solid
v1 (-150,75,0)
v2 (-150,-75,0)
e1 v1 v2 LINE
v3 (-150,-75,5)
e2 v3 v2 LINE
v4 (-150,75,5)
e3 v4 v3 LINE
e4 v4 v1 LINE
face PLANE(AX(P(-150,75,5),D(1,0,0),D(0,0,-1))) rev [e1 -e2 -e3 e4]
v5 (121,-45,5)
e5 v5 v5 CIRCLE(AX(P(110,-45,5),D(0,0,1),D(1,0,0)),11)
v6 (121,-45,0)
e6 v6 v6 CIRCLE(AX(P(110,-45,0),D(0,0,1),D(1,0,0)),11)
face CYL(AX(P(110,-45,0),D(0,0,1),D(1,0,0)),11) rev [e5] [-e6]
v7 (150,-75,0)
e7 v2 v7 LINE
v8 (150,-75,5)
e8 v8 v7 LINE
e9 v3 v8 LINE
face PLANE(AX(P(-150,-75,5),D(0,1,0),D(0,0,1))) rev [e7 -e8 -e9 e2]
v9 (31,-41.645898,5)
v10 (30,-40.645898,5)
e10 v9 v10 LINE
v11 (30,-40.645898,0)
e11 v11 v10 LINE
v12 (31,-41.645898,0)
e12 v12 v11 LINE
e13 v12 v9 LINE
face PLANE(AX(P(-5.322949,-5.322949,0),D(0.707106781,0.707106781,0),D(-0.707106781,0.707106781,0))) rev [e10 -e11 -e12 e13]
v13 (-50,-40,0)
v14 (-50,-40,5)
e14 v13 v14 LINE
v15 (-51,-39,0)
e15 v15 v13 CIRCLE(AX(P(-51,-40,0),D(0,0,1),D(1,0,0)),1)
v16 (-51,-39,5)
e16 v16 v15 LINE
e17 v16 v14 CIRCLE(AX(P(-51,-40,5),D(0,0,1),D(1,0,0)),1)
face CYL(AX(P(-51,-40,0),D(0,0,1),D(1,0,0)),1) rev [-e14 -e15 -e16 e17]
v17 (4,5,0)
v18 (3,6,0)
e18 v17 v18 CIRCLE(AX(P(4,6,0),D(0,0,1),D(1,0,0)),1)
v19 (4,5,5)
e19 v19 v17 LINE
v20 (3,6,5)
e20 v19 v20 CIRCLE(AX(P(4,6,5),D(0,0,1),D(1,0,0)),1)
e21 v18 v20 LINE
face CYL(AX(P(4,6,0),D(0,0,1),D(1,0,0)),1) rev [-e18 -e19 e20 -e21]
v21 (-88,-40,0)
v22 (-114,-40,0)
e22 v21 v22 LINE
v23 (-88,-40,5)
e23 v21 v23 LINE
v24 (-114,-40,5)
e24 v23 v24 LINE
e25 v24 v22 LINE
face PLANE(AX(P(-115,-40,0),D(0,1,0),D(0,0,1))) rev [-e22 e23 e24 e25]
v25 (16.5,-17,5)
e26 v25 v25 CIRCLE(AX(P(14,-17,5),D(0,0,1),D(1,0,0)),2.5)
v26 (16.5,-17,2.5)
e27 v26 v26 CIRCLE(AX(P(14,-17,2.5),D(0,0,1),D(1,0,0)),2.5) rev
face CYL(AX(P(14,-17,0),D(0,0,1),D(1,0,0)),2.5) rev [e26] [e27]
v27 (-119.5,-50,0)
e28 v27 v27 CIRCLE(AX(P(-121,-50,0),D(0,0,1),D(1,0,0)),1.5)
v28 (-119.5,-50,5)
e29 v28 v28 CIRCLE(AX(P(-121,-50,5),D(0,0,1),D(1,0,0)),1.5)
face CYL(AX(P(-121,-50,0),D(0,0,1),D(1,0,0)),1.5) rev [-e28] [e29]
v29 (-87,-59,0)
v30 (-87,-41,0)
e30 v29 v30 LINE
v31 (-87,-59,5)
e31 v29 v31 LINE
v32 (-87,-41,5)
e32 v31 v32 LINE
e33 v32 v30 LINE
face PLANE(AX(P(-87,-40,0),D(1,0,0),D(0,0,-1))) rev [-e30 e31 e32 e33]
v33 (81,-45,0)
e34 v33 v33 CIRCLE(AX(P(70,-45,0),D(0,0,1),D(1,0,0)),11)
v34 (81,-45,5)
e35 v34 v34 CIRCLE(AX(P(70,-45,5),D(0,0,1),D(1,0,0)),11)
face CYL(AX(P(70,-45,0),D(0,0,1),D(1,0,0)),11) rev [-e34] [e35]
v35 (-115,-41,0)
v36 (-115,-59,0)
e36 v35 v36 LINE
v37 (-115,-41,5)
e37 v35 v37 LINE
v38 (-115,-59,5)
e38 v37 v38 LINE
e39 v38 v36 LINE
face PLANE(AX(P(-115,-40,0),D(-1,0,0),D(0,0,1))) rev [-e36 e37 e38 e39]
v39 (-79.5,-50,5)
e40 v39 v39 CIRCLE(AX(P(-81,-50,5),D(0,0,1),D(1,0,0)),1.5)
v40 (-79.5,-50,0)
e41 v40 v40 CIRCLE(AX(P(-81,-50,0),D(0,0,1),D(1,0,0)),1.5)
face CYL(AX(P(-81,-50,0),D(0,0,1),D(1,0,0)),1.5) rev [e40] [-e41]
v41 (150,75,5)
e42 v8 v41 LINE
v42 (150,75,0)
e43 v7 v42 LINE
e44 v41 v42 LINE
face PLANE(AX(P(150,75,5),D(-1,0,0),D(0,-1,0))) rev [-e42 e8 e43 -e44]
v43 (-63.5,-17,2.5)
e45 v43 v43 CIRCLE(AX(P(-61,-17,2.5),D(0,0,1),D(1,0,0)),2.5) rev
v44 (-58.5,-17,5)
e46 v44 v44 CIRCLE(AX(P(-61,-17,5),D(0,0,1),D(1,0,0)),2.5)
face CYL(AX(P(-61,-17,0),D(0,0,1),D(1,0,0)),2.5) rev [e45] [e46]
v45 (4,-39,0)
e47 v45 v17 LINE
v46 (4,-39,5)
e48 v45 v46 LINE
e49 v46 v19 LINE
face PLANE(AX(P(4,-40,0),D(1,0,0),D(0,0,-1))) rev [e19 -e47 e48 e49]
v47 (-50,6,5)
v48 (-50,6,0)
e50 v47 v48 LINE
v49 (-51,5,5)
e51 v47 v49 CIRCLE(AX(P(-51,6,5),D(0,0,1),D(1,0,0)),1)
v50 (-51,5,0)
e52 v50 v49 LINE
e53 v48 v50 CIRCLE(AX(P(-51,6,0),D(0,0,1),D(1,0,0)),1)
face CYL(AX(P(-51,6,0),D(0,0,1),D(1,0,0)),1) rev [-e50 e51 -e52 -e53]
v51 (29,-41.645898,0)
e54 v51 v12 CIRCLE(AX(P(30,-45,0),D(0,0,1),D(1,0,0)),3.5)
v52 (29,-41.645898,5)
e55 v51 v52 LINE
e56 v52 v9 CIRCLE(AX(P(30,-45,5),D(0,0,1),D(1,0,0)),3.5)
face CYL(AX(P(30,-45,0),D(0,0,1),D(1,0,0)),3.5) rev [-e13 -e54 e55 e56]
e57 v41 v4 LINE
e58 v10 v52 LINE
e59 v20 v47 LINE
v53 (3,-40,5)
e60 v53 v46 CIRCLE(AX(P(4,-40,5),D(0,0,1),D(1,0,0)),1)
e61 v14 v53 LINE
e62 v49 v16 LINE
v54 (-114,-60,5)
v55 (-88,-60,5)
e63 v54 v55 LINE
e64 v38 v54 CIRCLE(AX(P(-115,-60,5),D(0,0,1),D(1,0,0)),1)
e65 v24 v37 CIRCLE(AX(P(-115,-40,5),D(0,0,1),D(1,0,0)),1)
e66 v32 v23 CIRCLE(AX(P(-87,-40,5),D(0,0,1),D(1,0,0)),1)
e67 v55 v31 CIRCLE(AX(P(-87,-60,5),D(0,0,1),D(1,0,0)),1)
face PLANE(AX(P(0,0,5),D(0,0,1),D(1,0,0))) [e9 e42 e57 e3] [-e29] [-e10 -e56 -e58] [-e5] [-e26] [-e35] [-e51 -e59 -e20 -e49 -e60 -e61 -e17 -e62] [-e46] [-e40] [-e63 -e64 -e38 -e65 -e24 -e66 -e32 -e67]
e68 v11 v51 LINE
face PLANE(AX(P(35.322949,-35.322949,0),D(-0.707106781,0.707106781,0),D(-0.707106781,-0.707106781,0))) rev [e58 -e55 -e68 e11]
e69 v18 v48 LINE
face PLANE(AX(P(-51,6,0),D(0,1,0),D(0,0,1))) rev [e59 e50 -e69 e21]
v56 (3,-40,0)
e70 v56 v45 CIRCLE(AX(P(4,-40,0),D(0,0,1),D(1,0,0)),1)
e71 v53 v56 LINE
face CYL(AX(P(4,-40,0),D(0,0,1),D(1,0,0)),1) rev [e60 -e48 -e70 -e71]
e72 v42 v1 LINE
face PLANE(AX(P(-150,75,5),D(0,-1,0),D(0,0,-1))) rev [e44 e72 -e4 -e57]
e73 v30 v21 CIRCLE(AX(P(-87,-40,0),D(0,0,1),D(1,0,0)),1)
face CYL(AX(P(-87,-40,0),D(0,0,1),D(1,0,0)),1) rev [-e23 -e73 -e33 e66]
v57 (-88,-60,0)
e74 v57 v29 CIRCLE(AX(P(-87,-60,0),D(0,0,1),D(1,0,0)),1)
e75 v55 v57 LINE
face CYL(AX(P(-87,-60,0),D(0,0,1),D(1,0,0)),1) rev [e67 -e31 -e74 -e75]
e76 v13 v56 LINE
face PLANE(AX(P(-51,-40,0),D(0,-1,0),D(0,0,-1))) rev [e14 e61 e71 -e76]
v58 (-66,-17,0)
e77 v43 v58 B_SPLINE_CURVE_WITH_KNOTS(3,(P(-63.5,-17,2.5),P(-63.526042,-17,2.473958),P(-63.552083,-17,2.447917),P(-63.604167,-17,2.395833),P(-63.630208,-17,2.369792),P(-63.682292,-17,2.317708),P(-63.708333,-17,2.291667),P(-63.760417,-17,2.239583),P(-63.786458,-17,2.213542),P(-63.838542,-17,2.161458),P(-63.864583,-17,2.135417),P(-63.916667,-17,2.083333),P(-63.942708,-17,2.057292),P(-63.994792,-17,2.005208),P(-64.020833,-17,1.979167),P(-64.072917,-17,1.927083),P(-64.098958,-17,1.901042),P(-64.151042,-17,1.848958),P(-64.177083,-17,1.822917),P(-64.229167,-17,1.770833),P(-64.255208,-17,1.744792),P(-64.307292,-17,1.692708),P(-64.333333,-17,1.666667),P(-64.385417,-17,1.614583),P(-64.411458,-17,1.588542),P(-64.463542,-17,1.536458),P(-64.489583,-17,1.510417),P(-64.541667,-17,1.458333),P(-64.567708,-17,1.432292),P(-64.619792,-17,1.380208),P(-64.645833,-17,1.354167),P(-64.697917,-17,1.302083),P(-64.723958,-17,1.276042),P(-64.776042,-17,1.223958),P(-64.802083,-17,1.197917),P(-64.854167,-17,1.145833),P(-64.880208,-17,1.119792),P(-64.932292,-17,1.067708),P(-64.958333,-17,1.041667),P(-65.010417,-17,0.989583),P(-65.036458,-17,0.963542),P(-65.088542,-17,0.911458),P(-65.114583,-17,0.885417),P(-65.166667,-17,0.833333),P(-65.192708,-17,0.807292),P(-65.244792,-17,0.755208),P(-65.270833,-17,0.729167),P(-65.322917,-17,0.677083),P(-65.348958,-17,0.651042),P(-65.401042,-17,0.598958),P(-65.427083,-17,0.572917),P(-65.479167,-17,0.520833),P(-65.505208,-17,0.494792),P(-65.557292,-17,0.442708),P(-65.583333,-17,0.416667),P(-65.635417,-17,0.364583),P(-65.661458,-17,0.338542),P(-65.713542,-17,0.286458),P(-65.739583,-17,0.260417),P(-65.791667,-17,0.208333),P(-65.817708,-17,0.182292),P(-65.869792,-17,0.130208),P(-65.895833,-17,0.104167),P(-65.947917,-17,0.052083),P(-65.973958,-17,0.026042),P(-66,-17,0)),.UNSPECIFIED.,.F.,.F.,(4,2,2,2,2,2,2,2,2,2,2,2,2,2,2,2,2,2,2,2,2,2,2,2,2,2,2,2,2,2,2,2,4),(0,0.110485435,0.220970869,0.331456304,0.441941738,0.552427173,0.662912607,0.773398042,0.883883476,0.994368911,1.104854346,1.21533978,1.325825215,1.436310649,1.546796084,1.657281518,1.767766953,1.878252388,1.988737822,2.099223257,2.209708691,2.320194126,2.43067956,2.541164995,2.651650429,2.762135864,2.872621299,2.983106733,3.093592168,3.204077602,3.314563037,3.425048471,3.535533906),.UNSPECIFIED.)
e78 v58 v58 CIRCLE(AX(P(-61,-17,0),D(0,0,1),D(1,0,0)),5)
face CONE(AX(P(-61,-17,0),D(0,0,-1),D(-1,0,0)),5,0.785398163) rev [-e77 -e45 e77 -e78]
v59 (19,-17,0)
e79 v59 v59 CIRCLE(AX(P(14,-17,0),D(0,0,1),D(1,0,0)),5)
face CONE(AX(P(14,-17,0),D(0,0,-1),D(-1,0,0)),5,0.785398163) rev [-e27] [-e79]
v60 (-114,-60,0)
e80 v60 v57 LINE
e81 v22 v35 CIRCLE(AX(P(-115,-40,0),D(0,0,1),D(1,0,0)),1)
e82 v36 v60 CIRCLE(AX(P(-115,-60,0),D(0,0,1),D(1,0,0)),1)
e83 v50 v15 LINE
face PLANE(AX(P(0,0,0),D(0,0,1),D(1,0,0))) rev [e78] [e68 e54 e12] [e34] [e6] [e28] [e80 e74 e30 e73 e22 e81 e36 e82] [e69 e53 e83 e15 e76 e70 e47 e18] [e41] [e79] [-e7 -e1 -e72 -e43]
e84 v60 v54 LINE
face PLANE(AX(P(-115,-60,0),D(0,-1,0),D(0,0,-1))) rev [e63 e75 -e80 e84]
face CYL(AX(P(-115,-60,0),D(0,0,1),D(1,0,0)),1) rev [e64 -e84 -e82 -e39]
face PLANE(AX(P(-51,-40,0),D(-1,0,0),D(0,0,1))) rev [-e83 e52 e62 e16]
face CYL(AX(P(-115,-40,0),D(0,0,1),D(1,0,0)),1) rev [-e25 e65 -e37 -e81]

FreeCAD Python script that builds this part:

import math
import FreeCAD as App
import Part
import Sketcher
Q = App.Units.Quantity


def edges_at(feature, points):
    """Names of the edges that pass closest to the given points."""
    edges = feature.Shape.Edges
    near = lambda p: min(range(len(edges)), key=lambda i: edges[i].distToShape(Part.Vertex(*p))[0])
    return sorted({f"Edge{near(p) + 1}" for p in points})


def add_polygon(sketch, points):
    """Adds a closed chain of lines whose ends are joined by coincident constraints."""
    first, n = sketch.GeometryCount, len(points)
    for a, b in zip(points, points[1:] + points[:1]):
        sketch.addGeometry(Part.LineSegment(App.Vector(*a, 0), App.Vector(*b, 0)), False)
    for i in range(n):
        sketch.addConstraint(Sketcher.Constraint("Coincident", first + i, 2, first + (i + 1) % n, 1))

doc = App.newDocument("Part")
body = doc.addObject("PartDesign::Body", "Body")

# Sketch on XY plane
sketch1 = body.newObject("Sketcher::SketchObject", "Sketch")
sketch1.AttachmentSupport = (doc.getObject("XY_Plane"), [""])
sketch1.MapMode = "FlatFace"
add_polygon(sketch1, [(-150, 75), (-150, -75), (150, -75), (150, 75)])  # lines 0-3
sketch1.addConstraint([
    Sketcher.Constraint("Vertical", 0),
    Sketcher.Constraint("Horizontal", 1),
    Sketcher.Constraint("Vertical", 2),
    Sketcher.Constraint("Horizontal", 3),
    Sketcher.Constraint("Symmetric", 0, 2, 2, 2, -1, 1),
    Sketcher.Constraint("DistanceX", 1, 1, 1, 2, Q("300 mm")),
    Sketcher.Constraint("DistanceY", 0, 2, 0, 1, Q("150 mm")),
])
pad1 = body.newObject("PartDesign::Pad", "Pad")
pad1.Profile = sketch1
pad1.Length = 5

# Sketch on XY plane
sketch2 = body.newObject("Sketcher::SketchObject", "Sketch001")
sketch2.AttachmentSupport = (doc.getObject("XY_Plane"), [""])
sketch2.MapMode = "FlatFace"
sketch2.AttachmentOffset = App.Placement(App.Vector(0, 0, 5), App.Rotation())
sketch2.addGeometry(Part.Circle(App.Vector(-121, -50, 0), App.Vector(0, 0, 1), 1.5), False)  # 0
sketch2.addGeometry(Part.Circle(App.Vector(-81, -50, 0), App.Vector(0, 0, 1), 1.5), False)  # 1
add_polygon(sketch2, [(-115, -40), (-115, -60), (-87, -60), (-87, -40)])  # lines 2-5
sketch2.addConstraint([
    Sketcher.Constraint("Vertical", 2),
    Sketcher.Constraint("Horizontal", 3),
    Sketcher.Constraint("Vertical", 4),
    Sketcher.Constraint("Horizontal", 5),
    Sketcher.Constraint("Equal", 0, 1),
    Sketcher.Constraint("Horizontal", 0, 3, 1, 3),
    Sketcher.Constraint("Diameter", 0, Q("3 mm")),
    Sketcher.Constraint("DistanceX", 3, 1, 3, 2, Q("28 mm")),
    Sketcher.Constraint("DistanceY", 2, 2, 2, 1, Q("20 mm")),
    Sketcher.Constraint("DistanceX", 0, 3, -1, 1, Q("121 mm")),
    Sketcher.Constraint("DistanceY", 0, 3, -1, 1, Q("50 mm")),
    Sketcher.Constraint("DistanceX", 1, 3, -1, 1, Q("81 mm")),
    Sketcher.Constraint("DistanceX", 2, 2, -1, 1, Q("115 mm")),
    Sketcher.Constraint("DistanceY", 2, 2, -1, 1, Q("60 mm")),
])
pocket1 = body.newObject("PartDesign::Pocket", "Pocket")
pocket1.Profile = sketch2
pocket1.Type = "ThroughAll"

# Sketch on XY plane
sketch3 = body.newObject("Sketcher::SketchObject", "Sketch002")
sketch3.AttachmentSupport = (doc.getObject("XY_Plane"), [""])
sketch3.MapMode = "FlatFace"
sketch3.AttachmentOffset = App.Placement(App.Vector(0, 0, 5), App.Rotation())
sketch3.addGeometry([
    Part.Circle(App.Vector(110, -45, 0), App.Vector(0, 0, 1), 11),
    Part.Circle(App.Vector(70, -45, 0), App.Vector(0, 0, 1), 11),
], False)
sketch3.addConstraint([
    Sketcher.Constraint("Equal", 0, 1),
    Sketcher.Constraint("Horizontal", 0, 3, 1, 3),
    Sketcher.Constraint("Diameter", 0, Q("22 mm")),
    Sketcher.Constraint("DistanceX", -1, 1, 0, 3, Q("110 mm")),
    Sketcher.Constraint("DistanceY", 0, 3, -1, 1, Q("45 mm")),
    Sketcher.Constraint("DistanceX", -1, 1, 1, 3, Q("70 mm")),
])
pocket2 = body.newObject("PartDesign::Pocket", "Pocket001")
pocket2.Profile = sketch3
pocket2.Type = "ThroughAll"

# Sketch on XY plane
sketch4 = body.newObject("Sketcher::SketchObject", "Sketch003")
sketch4.AttachmentSupport = (doc.getObject("XY_Plane"), [""])
sketch4.MapMode = "FlatFace"
sketch4.AttachmentOffset = App.Placement(App.Vector(0, 0, 5), App.Rotation())
sketch4.addGeometry([
    Part.Circle(App.Vector(-115, -40, 0), App.Vector(0, 0, 1), 1),
    Part.Circle(App.Vector(-87, -40, 0), App.Vector(0, 0, 1), 1),
    Part.Circle(App.Vector(-87, -60, 0), App.Vector(0, 0, 1), 1),
    Part.Circle(App.Vector(-115, -60, 0), App.Vector(0, 0, 1), 1),
], False)
sketch4.addConstraint([
    Sketcher.Constraint("Equal", 0, 1),
    Sketcher.Constraint("Equal", 1, 2),
    Sketcher.Constraint("Equal", 2, 3),
    Sketcher.Constraint("Horizontal", 0, 3, 1, 3),
    Sketcher.Constraint("Horizontal", 2, 3, 3, 3),
    Sketcher.Constraint("Vertical", 1, 3, 2, 3),
    Sketcher.Constraint("Vertical", 0, 3, 3, 3),
    Sketcher.Constraint("Diameter", 0, Q("2 mm")),
    Sketcher.Constraint("DistanceX", 0, 3, -1, 1, Q("115 mm")),
    Sketcher.Constraint("DistanceY", 0, 3, -1, 1, Q("40 mm")),
    Sketcher.Constraint("DistanceX", 1, 3, -1, 1, Q("87 mm")),
    Sketcher.Constraint("DistanceY", 2, 3, -1, 1, Q("60 mm")),
])
pocket3 = body.newObject("PartDesign::Pocket", "Pocket002")
pocket3.Profile = sketch4
pocket3.Type = "ThroughAll"

# Sketch on XY plane
sketch5 = body.newObject("Sketcher::SketchObject", "Sketch004")
sketch5.AttachmentSupport = (doc.getObject("XY_Plane"), [""])
sketch5.MapMode = "FlatFace"
sketch5.AttachmentOffset = App.Placement(App.Vector(0, 0, 5), App.Rotation())
sketch5.addGeometry(Part.Circle(App.Vector(-61, -17, 0), App.Vector(0, 0, 1), 2.5), False)  # 0
sketch5.addGeometry(Part.Circle(App.Vector(14, -17, 0), App.Vector(0, 0, 1), 2.5), False)  # 1
add_polygon(sketch5, [(-51, 6), (-51, -40), (4, -40), (4, 6)])  # lines 2-5
sketch5.addConstraint([
    Sketcher.Constraint("Vertical", 2),
    Sketcher.Constraint("Horizontal", 3),
    Sketcher.Constraint("Vertical", 4),
    Sketcher.Constraint("Horizontal", 5),
    Sketcher.Constraint("Equal", 0, 1),
    Sketcher.Constraint("Horizontal", 0, 3, 1, 3),
    Sketcher.Constraint("Diameter", 0, Q("5 mm")),
    Sketcher.Constraint("DistanceX", 3, 1, 3, 2, Q("55 mm")),
    Sketcher.Constraint("DistanceY", 2, 2, 2, 1, Q("46 mm")),
    Sketcher.Constraint("DistanceX", 0, 3, -1, 1, Q("61 mm")),
    Sketcher.Constraint("DistanceY", 0, 3, -1, 1, Q("17 mm")),
    Sketcher.Constraint("DistanceX", -1, 1, 1, 3, Q("14 mm")),
    Sketcher.Constraint("DistanceX", 2, 2, -1, 1, Q("51 mm")),
    Sketcher.Constraint("DistanceY", 2, 2, -1, 1, Q("40 mm")),
])
pocket4 = body.newObject("PartDesign::Pocket", "Pocket003")
pocket4.Profile = sketch5
pocket4.Type = "ThroughAll"

# Sketch on XY plane
sketch6 = body.newObject("Sketcher::SketchObject", "Sketch005")
sketch6.AttachmentSupport = (doc.getObject("XY_Plane"), [""])
sketch6.MapMode = "FlatFace"
sketch6.AttachmentOffset = App.Placement(App.Vector(0, 0, 5), App.Rotation())
sketch6.addGeometry([
    Part.Circle(App.Vector(-51, 6, 0), App.Vector(0, 0, 1), 1),
    Part.Circle(App.Vector(4, 6, 0), App.Vector(0, 0, 1), 1),
    Part.Circle(App.Vector(4, -40, 0), App.Vector(0, 0, 1), 1),
    Part.Circle(App.Vector(-51, -40, 0), App.Vector(0, 0, 1), 1),
], False)
sketch6.addConstraint([
    Sketcher.Constraint("Equal", 0, 1),
    Sketcher.Constraint("Equal", 1, 2),
    Sketcher.Constraint("Equal", 2, 3),
    Sketcher.Constraint("Horizontal", 0, 3, 1, 3),
    Sketcher.Constraint("Horizontal", 2, 3, 3, 3),
    Sketcher.Constraint("Vertical", 1, 3, 2, 3),
    Sketcher.Constraint("Vertical", 0, 3, 3, 3),
    Sketcher.Constraint("Diameter", 0, Q("2 mm")),
    Sketcher.Constraint("DistanceX", 0, 3, -1, 1, Q("51 mm")),
    Sketcher.Constraint("DistanceY", -1, 1, 0, 3, Q("6 mm")),
    Sketcher.Constraint("DistanceX", -1, 1, 1, 3, Q("4 mm")),
    Sketcher.Constraint("DistanceY", 2, 3, -1, 1, Q("40 mm")),
])
pocket5 = body.newObject("PartDesign::Pocket", "Pocket004")
pocket5.Profile = sketch6
pocket5.Type = "ThroughAll"

# Sketch on XY plane
sketch7 = body.newObject("Sketcher::SketchObject", "Sketch006")
sketch7.AttachmentSupport = (doc.getObject("XY_Plane"), [""])
sketch7.MapMode = "FlatFace"
sketch7.AttachmentOffset = App.Placement(App.Vector(0, 0, 5), App.Rotation())
sketch7.addGeometry([
    Part.LineSegment(App.Vector(30, -40.6, 0), App.Vector(29, -41.6, 0)),
    Part.ArcOfCircle(Part.Circle(App.Vector(30, -45, 0), App.Vector(0, 0, 1), 3.5), math.radians(107), math.radians(433)),
    Part.LineSegment(App.Vector(31, -41.6, 0), App.Vector(30, -40.6, 0)),
], False)
sketch7.addConstraint([
    Sketcher.Constraint("Coincident", 0, 2, 1, 1),
    Sketcher.Constraint("Coincident", 1, 2, 2, 1),
    Sketcher.Constraint("Coincident", 2, 2, 0, 1),
    Sketcher.Constraint("Perpendicular", 0, 2),
    Sketcher.Constraint("Horizontal", 0, 2, 1, 2),
    Sketcher.Constraint("Vertical", 1, 3, 2, 2),
    Sketcher.Constraint("Radius", 1, Q("3.5 mm")),
    Sketcher.Constraint("DistanceX", -1, 1, 1, 3, Q("30 mm")),
    Sketcher.Constraint("DistanceY", 1, 3, -1, 1, Q("45 mm")),
    Sketcher.Constraint("DistanceX", -1, 1, 0, 2, Q("29 mm")),
])
pocket6 = body.newObject("PartDesign::Pocket", "Pocket005")
pocket6.Profile = sketch7
pocket6.Type = "ThroughAll"
doc.recompute()

chamfer = body.newObject("PartDesign::Chamfer", "Chamfer")
chamfer.Base = (pocket6, edges_at(pocket6, [(-63.5, -17, 0), (11.5, -17, 0)]))
chamfer.Size = 2.5

doc.recompute()
